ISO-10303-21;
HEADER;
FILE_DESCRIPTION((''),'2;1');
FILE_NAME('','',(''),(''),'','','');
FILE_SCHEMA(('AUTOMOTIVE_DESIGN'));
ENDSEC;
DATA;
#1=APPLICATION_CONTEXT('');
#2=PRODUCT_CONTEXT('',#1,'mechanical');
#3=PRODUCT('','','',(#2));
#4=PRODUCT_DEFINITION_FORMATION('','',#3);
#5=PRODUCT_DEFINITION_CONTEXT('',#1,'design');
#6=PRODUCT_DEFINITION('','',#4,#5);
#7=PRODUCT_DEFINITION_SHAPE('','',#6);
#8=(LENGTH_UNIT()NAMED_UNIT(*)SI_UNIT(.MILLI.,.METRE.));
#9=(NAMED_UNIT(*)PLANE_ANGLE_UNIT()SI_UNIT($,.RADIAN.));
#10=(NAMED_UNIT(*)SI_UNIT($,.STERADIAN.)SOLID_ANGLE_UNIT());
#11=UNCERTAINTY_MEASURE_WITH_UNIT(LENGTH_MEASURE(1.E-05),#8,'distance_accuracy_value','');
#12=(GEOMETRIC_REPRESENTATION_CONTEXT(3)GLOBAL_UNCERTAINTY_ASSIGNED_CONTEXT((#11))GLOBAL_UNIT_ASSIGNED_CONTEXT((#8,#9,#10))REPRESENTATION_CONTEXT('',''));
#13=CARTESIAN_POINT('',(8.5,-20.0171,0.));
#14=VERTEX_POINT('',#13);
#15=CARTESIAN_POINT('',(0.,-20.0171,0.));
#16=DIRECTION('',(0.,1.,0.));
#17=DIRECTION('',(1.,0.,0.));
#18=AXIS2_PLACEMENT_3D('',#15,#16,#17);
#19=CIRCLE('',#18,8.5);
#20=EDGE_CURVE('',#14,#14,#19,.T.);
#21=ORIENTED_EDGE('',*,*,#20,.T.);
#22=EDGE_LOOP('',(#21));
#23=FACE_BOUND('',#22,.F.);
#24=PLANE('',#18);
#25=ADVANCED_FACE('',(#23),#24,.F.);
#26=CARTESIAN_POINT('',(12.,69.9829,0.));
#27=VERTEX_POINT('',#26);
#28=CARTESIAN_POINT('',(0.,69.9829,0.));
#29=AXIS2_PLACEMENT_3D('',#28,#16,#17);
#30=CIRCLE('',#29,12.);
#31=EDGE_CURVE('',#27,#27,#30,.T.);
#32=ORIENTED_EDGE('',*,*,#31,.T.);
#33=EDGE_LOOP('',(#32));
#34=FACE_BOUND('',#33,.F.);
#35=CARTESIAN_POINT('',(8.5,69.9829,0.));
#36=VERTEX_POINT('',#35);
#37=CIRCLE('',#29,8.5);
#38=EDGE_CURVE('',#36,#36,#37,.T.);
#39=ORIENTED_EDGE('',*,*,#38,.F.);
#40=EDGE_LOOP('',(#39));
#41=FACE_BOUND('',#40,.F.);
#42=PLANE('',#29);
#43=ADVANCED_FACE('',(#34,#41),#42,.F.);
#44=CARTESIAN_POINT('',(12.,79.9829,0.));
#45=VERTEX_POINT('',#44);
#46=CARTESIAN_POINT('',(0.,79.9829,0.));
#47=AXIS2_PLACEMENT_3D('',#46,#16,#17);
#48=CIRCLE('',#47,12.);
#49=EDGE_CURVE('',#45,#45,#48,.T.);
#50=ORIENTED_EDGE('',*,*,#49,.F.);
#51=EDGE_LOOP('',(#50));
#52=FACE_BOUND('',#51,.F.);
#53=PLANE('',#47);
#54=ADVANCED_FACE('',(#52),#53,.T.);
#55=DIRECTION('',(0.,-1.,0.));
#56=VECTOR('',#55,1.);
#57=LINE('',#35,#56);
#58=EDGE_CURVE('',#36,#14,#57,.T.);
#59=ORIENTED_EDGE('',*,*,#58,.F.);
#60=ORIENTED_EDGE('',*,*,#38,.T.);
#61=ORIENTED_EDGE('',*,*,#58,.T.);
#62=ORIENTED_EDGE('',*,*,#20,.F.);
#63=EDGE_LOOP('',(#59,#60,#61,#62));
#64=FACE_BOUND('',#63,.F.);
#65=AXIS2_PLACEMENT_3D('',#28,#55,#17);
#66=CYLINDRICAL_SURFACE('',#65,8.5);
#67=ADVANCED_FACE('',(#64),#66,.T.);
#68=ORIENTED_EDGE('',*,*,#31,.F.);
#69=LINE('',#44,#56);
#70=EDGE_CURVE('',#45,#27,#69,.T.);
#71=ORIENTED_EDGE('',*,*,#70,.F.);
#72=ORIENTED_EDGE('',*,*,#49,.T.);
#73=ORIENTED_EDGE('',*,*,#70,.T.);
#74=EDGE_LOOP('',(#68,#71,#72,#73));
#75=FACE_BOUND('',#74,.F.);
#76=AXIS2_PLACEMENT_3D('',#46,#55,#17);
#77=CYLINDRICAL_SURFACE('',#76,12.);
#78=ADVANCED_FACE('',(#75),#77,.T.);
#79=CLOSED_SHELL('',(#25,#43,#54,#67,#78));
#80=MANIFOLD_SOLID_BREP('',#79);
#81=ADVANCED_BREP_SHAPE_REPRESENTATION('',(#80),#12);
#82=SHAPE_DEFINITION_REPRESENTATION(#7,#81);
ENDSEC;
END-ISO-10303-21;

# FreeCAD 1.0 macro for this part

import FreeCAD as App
import Part
import Sketcher
Q = App.Units.Quantity

doc = App.newDocument("Part")
body = doc.addObject("PartDesign::Body", "Body")

# Sketch on XY plane
sketch1 = doc.addObject("Sketcher::SketchObject", "Sketch")
body.addObject(sketch1)
sketch1.AttachmentSupport = (doc.XY_Plane, [""])
sketch1.MapMode = "FlatFace"
sketch1.addGeometry([
    Part.LineSegment(App.Vector(0, 80, 0), App.Vector(0, -20, 0)),  # 0
    Part.LineSegment(App.Vector(0, -20, 0), App.Vector(8.5, -20, 0)),  # 1
    Part.LineSegment(App.Vector(8.5, -20, 0), App.Vector(8.5, 70, 0)),  # 2
    Part.LineSegment(App.Vector(8.5, 70, 0), App.Vector(12, 70, 0)),  # 3
    Part.LineSegment(App.Vector(12, 70, 0), App.Vector(12, 80, 0)),  # 4
    Part.LineSegment(App.Vector(12, 80, 0), App.Vector(0, 80, 0)),  # 5
], False)
sketch1.addConstraint([
    Sketcher.Constraint("Coincident", 0, 2, 1, 1),
    Sketcher.Constraint("Coincident", 1, 2, 2, 1),
    Sketcher.Constraint("Coincident", 2, 2, 3, 1),
    Sketcher.Constraint("Coincident", 3, 2, 4, 1),
    Sketcher.Constraint("Coincident", 4, 2, 5, 1),
    Sketcher.Constraint("Coincident", 5, 2, 0, 1),
    Sketcher.Constraint("Vertical", 0),
    Sketcher.Constraint("Horizontal", 1),
    Sketcher.Constraint("Vertical", 2),
    Sketcher.Constraint("Horizontal", 3),
    Sketcher.Constraint("Vertical", 4),
    Sketcher.Constraint("Horizontal", 5),
    Sketcher.Constraint("PointOnObject", 0, 2, -2),
    Sketcher.Constraint("DistanceX", 5, 2, 5, 1, Q("12 mm")),
    Sketcher.Constraint("DistanceY", 0, 2, 0, 1, Q("100 mm")),
    Sketcher.Constraint("DistanceY", 2, 1, 2, 2, Q("90 mm")),
    Sketcher.Constraint("DistanceX", 1, 1, 1, 2, Q("8.5 mm")),
    Sketcher.Constraint("DistanceY", 0, 2, -1, 1, Q("20.017 mm")),
])
revolution = doc.addObject("PartDesign::Revolution", "Revolution")
body.addObject(revolution)
revolution.Profile = sketch1
revolution.ReferenceAxis = (sketch1, ["V_Axis"])
revolution.Angle = 360

doc.recompute()
